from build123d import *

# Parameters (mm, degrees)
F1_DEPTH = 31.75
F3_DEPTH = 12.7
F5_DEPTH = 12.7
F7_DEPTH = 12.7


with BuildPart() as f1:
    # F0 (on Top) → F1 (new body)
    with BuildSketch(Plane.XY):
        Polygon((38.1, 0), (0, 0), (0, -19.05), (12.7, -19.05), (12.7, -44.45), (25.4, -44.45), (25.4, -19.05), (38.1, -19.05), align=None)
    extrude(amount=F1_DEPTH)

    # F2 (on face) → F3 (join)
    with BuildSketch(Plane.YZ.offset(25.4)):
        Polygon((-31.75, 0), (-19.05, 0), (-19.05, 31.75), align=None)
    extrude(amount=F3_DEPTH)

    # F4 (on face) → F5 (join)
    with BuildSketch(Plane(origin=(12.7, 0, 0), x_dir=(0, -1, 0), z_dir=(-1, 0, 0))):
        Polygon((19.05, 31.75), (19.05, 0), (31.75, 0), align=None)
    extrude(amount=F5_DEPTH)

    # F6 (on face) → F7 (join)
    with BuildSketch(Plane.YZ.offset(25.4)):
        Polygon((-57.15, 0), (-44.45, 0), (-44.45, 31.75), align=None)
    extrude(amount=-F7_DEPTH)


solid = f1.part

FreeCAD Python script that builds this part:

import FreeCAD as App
import Part
import Sketcher
Q = App.Units.Quantity


def add_polygon(sketch, points):
    """Adds a closed chain of lines whose ends are joined by coincident constraints."""
    first, n = sketch.GeometryCount, len(points)
    for a, b in zip(points, points[1:] + points[:1]):
        sketch.addGeometry(Part.LineSegment(App.Vector(*a, 0), App.Vector(*b, 0)), False)
    for i in range(n):
        sketch.addConstraint(Sketcher.Constraint("Coincident", first + i, 2, first + (i + 1) % n, 1))

doc = App.newDocument("Part")
body = doc.addObject("PartDesign::Body", "Body")

# Sketch on XY plane
sketch1 = body.newObject("Sketcher::SketchObject", "Sketch")
sketch1.AttachmentSupport = (doc.getObject("XY_Plane"), [""])
sketch1.MapMode = "FlatFace"
add_polygon(sketch1, [(38, 0), (0, 0), (0, -19), (13, -19), (13, -44), (25, -44), (25, -19), (38, -19)])  # lines 0-7
sketch1.addConstraint([
    Sketcher.Constraint("Horizontal", 0),
    Sketcher.Constraint("Vertical", 1),
    Sketcher.Constraint("Horizontal", 2),
    Sketcher.Constraint("Vertical", 3),
    Sketcher.Constraint("Horizontal", 4),
    Sketcher.Constraint("Vertical", 5),
    Sketcher.Constraint("Horizontal", 6),
    Sketcher.Constraint("Vertical", 7),
    Sketcher.Constraint("Coincident", 0, 2, -1, 1),
    Sketcher.Constraint("Horizontal", 2, 2, 5, 2),
    Sketcher.Constraint("Equal", 2, 4),
    Sketcher.Constraint("Equal", 4, 6),
    Sketcher.Constraint("DistanceY", 3, 2, 3, 1, Q("1 in")),
    Sketcher.Constraint("DistanceX", 0, 2, 0, 1, Q("1.5 in")),
    Sketcher.Constraint("DistanceY", 1, 2, 1, 1, Q("0.75 in")),
])
pad1 = body.newObject("PartDesign::Pad", "Pad")
pad1.Profile = sketch1
pad1.Length = Q("1.25 in")

# Sketch on YZ plane
sketch2 = body.newObject("Sketcher::SketchObject", "Sketch001")
sketch2.AttachmentSupport = (doc.getObject("YZ_Plane"), [""])
sketch2.MapMode = "FlatFace"
sketch2.AttachmentOffset = App.Placement(App.Vector(0, 0, 1 * 25.4), App.Rotation())
add_polygon(sketch2, [(-32, 0), (-19, 0), (-19, 32)])  # lines 0-2
sketch2.addConstraint([
    Sketcher.Constraint("Horizontal", 0),
    Sketcher.Constraint("Vertical", 1),
    Sketcher.Constraint("PointOnObject", 0, 2, -1),
    Sketcher.Constraint("DistanceX", 0, 1, 0, 2, Q("0.5 in")),
    Sketcher.Constraint("DistanceY", 1, 1, 1, 2, Q("1.25 in")),
    Sketcher.Constraint("DistanceX", 0, 2, -1, 1, Q("0.75 in")),
])
pad2 = body.newObject("PartDesign::Pad", "Pad001")
pad2.Profile = sketch2
pad2.Length = Q("0.5 in")

# Sketch on YZ plane
sketch3 = body.newObject("Sketcher::SketchObject", "Sketch002")
sketch3.AttachmentSupport = (doc.getObject("YZ_Plane"), [""])
sketch3.MapMode = "FlatFace"
sketch3.AttachmentOffset = App.Placement(App.Vector(0, 0, 0.5 * 25.4), App.Rotation())
add_polygon(sketch3, [(-19, 32), (-19, 0), (-32, 0)])  # lines 0-2
sketch3.addConstraint([
    Sketcher.Constraint("Vertical", 0),
    Sketcher.Constraint("Horizontal", 1),
    Sketcher.Constraint("PointOnObject", 0, 2, -1),
    Sketcher.Constraint("DistanceX", 1, 2, 1, 1, Q("0.5 in")),
    Sketcher.Constraint("DistanceY", 0, 2, 0, 1, Q("1.25 in")),
    Sketcher.Constraint("DistanceX", 0, 2, -1, 1, Q("0.75 in")),
])
pad3 = body.newObject("PartDesign::Pad", "Pad002")
pad3.Profile = sketch3
pad3.Length = Q("0.5 in")
pad3.Reversed = True

# Sketch on YZ plane
sketch4 = body.newObject("Sketcher::SketchObject", "Sketch003")
sketch4.AttachmentSupport = (doc.getObject("YZ_Plane"), [""])
sketch4.MapMode = "FlatFace"
sketch4.AttachmentOffset = App.Placement(App.Vector(0, 0, 1 * 25.4), App.Rotation())
add_polygon(sketch4, [(-57, 0), (-44, 0), (-44, 32)])  # lines 0-2
sketch4.addConstraint([
    Sketcher.Constraint("Horizontal", 0),
    Sketcher.Constraint("Vertical", 1),
    Sketcher.Constraint("PointOnObject", 0, 2, -1),
    Sketcher.Constraint("DistanceX", 0, 1, 0, 2, Q("0.5 in")),
    Sketcher.Constraint("DistanceY", 1, 1, 1, 2, Q("1.25 in")),
    Sketcher.Constraint("DistanceX", 0, 2, -1, 1, Q("1.75 in")),
])
pad4 = body.newObject("PartDesign::Pad", "Pad003")
pad4.Profile = sketch4
pad4.Length = Q("0.5 in")
pad4.Reversed = True

doc.recompute()
